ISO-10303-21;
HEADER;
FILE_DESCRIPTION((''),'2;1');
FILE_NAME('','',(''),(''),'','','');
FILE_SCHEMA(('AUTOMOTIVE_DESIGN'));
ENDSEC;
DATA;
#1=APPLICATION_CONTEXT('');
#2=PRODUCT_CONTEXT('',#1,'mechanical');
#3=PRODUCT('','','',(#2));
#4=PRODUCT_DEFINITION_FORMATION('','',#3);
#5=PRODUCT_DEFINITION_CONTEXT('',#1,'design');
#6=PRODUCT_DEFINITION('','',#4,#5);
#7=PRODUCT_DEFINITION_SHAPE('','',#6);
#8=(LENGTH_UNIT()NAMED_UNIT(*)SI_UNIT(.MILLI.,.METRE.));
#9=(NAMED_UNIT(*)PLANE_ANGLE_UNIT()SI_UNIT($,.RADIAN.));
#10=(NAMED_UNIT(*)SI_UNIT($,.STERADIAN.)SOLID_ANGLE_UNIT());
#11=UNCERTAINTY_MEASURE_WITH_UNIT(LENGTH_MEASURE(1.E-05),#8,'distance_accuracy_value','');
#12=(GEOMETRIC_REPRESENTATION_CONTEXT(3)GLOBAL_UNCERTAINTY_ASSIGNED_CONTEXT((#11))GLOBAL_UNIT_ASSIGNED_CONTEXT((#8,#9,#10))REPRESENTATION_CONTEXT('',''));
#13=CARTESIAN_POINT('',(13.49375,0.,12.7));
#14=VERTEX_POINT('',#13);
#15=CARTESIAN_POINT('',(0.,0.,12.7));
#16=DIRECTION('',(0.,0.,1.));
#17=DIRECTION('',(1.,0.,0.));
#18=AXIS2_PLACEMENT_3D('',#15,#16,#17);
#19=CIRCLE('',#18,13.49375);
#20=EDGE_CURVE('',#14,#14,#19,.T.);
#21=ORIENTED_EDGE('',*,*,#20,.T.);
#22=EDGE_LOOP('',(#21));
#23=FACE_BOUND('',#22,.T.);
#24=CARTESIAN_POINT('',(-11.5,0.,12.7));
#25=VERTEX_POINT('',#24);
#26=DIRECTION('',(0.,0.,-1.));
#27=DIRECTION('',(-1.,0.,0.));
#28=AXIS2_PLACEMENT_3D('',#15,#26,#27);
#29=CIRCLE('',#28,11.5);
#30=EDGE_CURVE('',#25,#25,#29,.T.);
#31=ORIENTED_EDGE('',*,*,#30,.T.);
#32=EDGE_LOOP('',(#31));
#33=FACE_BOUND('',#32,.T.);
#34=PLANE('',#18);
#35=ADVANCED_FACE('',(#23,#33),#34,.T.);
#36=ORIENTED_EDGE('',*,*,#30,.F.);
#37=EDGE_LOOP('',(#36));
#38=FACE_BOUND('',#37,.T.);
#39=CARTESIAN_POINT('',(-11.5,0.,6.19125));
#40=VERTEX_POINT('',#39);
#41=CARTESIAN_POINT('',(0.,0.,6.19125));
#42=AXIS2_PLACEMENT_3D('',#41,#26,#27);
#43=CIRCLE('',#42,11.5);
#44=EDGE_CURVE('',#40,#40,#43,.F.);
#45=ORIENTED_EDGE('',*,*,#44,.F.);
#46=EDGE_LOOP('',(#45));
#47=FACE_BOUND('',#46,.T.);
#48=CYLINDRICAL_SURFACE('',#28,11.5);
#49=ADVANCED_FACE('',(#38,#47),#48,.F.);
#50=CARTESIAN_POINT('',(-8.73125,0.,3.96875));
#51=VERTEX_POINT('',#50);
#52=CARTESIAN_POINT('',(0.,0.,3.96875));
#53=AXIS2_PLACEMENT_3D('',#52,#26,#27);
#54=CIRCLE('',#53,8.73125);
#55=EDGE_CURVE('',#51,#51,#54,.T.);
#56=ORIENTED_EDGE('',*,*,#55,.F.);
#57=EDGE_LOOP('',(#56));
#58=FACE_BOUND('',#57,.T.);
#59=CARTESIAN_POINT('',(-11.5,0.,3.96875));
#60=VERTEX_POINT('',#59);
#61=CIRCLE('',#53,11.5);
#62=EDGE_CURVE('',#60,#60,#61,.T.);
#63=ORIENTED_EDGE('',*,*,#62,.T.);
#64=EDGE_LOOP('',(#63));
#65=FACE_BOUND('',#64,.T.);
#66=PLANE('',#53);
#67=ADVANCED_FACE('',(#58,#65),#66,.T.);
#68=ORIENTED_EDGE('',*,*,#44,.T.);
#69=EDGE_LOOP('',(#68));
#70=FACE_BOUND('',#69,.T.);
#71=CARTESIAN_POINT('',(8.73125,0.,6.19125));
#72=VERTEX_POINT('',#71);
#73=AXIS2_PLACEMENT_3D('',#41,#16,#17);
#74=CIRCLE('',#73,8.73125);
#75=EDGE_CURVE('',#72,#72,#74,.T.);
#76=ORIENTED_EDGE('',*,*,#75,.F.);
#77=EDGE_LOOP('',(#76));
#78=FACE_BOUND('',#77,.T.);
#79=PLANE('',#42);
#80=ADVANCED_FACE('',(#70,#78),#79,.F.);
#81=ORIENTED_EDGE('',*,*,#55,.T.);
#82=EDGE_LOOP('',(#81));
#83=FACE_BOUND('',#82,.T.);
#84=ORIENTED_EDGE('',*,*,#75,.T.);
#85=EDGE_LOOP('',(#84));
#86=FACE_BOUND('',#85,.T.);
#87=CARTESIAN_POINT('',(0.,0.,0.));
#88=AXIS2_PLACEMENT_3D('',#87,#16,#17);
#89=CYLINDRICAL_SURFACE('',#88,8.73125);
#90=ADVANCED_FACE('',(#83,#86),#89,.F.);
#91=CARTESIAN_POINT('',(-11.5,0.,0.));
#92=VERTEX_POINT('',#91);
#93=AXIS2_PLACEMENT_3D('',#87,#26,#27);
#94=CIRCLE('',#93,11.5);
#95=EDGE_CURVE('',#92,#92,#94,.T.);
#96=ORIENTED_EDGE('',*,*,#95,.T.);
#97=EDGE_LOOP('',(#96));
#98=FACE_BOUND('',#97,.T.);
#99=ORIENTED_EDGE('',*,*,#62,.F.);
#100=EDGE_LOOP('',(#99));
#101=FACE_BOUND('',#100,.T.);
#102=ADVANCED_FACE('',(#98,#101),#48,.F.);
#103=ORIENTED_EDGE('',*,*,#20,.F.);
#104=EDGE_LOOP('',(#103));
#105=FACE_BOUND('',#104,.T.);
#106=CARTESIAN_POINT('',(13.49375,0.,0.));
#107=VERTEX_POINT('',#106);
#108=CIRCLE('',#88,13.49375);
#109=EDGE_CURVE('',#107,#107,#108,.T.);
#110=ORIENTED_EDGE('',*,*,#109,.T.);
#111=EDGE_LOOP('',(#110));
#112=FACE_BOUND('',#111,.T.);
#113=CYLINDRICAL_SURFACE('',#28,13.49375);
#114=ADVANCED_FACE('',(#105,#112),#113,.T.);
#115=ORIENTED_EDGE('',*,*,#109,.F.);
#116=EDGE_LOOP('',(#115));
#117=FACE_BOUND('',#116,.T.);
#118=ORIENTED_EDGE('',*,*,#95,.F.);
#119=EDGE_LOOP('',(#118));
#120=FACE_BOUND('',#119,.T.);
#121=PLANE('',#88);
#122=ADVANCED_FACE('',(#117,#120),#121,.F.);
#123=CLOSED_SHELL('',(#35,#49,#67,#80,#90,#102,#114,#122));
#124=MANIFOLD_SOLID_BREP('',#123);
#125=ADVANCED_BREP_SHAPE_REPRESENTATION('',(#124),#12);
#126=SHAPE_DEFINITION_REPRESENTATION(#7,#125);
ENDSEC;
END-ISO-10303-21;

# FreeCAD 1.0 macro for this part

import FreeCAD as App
import Part
import Sketcher
from FreeCAD import Vector
Q = App.Units.Quantity

doc = App.newDocument("Part")
body = doc.addObject("PartDesign::Body", "Body")

# Sketch on XY plane
sketch1 = doc.addObject("Sketcher::SketchObject", "Sketch")
body.addObject(sketch1)
sketch1.AttachmentSupport = (doc.XY_Plane, [""])
sketch1.MapMode = "FlatFace"
sketch1.addGeometry(Part.Circle(Vector(0, 0, 0), Vector(0, 0, 1), 13.49375), False)
sketch1.addConstraint([
    Sketcher.Constraint("Coincident", 0, 3, -1, 1),
    Sketcher.Constraint("Diameter", 0, Q("1.0625 in")),
])
pad1 = doc.addObject("PartDesign::Pad", "Pad")
body.addObject(pad1)
pad1.Profile = sketch1
pad1.Length = Q("0.5 in")

# Sketch on XY plane
sketch2 = doc.addObject("Sketcher::SketchObject", "Sketch001")
body.addObject(sketch2)
sketch2.AttachmentSupport = (doc.XY_Plane, [""])
sketch2.MapMode = "FlatFace"
sketch2.addGeometry(Part.Circle(Vector(0, 0, 0), Vector(0, 0, 1), 11.5), False)
sketch2.addConstraint([
    Sketcher.Constraint("Coincident", 0, 3, -1, 1),
    Sketcher.Constraint("Diameter", 0, Q("23 mm")),
])
pocket1 = doc.addObject("PartDesign::Pocket", "Pocket")
body.addObject(pocket1)
pocket1.Profile = sketch2
pocket1.Type = "ThroughAll"
pocket1.Reversed = True

# Sketch on XY plane
sketch3 = doc.addObject("Sketcher::SketchObject", "Sketch002")
body.addObject(sketch3)
sketch3.AttachmentSupport = (doc.XY_Plane, [""])
sketch3.MapMode = "FlatFace"
sketch3.AttachmentOffset = App.Placement(Vector(0, 0, 0.15625 * 25.4), App.Rotation())
sketch3.addGeometry(Part.Circle(Vector(0, 0, 0), Vector(0, 0, 1), 11.5), False)
sketch3.addConstraint([
    Sketcher.Constraint("Coincident", 0, 3, -1, 1),
    Sketcher.Constraint("Diameter", 0, Q("23 mm")),
])
pad2 = doc.addObject("PartDesign::Pad", "Pad001")
body.addObject(pad2)
pad2.Profile = sketch3
pad2.Length = Q("0.0875 in")

# Sketch on XY plane
sketch4 = doc.addObject("Sketcher::SketchObject", "Sketch003")
body.addObject(sketch4)
sketch4.AttachmentSupport = (doc.XY_Plane, [""])
sketch4.MapMode = "FlatFace"
sketch4.AttachmentOffset = App.Placement(Vector(0, 0, 6.19125), App.Rotation())
sketch4.addGeometry(Part.Circle(Vector(0, 0, 0), Vector(0, 0, 1), 8.73125), False)
sketch4.addConstraint([
    Sketcher.Constraint("Coincident", 0, 3, -1, 1),
    Sketcher.Constraint("Diameter", 0, Q("0.6875 in")),
])
pocket2 = doc.addObject("PartDesign::Pocket", "Pocket001")
body.addObject(pocket2)
pocket2.Profile = sketch4
pocket2.Type = "ThroughAll"

doc.recompute()
